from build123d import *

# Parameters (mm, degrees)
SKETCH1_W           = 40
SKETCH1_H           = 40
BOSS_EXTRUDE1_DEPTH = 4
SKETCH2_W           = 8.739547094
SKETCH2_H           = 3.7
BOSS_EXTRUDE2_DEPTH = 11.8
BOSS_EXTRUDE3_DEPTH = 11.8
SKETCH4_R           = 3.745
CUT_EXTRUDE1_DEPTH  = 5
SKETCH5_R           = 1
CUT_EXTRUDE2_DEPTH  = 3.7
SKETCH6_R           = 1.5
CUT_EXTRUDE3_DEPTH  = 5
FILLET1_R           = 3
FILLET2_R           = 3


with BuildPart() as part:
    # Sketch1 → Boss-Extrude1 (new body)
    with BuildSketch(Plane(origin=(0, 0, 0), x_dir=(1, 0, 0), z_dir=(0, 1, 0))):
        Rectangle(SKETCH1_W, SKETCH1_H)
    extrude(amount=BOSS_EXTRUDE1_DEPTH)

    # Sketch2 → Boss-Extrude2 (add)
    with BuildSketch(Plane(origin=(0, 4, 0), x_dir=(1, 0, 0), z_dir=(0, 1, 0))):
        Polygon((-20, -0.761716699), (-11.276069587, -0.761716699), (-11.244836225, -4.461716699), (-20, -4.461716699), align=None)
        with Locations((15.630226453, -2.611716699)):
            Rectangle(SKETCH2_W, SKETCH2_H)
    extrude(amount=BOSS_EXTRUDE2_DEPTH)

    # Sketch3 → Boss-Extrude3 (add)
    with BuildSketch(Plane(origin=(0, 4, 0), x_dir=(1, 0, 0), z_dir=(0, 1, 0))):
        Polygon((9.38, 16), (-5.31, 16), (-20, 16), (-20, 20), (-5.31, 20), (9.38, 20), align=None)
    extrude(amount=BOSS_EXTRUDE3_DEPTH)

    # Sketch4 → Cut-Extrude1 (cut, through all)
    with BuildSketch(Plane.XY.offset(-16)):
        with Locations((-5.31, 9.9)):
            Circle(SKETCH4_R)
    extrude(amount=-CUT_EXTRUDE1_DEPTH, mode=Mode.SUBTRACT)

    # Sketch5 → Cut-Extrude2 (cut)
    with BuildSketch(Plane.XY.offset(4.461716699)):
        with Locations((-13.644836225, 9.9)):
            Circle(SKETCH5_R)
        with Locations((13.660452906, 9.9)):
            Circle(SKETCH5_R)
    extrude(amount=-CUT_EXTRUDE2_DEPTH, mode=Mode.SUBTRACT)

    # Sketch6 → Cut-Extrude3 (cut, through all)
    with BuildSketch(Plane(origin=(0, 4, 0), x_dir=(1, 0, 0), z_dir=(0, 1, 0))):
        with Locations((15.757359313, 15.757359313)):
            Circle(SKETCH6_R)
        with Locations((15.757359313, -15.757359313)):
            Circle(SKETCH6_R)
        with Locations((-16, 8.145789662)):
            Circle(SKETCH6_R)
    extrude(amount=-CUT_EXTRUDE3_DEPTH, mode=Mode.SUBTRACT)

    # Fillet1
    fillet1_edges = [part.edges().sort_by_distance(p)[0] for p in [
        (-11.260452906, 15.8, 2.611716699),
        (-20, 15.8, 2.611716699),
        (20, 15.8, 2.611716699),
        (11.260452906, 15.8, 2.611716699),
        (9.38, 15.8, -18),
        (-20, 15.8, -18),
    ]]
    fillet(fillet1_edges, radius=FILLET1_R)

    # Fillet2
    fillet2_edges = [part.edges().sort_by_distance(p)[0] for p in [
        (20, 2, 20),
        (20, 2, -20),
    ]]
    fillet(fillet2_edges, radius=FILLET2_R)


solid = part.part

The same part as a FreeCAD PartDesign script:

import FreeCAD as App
import Part
import Sketcher
Q = App.Units.Quantity


def edges_at(feature, points):
    """Names of the edges that pass closest to the given points."""
    edges = feature.Shape.Edges
    near = lambda p: min(range(len(edges)), key=lambda i: edges[i].distToShape(Part.Vertex(*p))[0])
    return sorted({f"Edge{near(p) + 1}" for p in points})


def add_polygon(sketch, points):
    """Adds a closed chain of lines whose ends are joined by coincident constraints."""
    first, n = sketch.GeometryCount, len(points)
    for a, b in zip(points, points[1:] + points[:1]):
        sketch.addGeometry(Part.LineSegment(App.Vector(*a, 0), App.Vector(*b, 0)), False)
    for i in range(n):
        sketch.addConstraint(Sketcher.Constraint("Coincident", first + i, 2, first + (i + 1) % n, 1))

doc = App.newDocument("Part")
body = doc.addObject("PartDesign::Body", "Body")

# Sketch on XZ plane
sketch1 = body.newObject("Sketcher::SketchObject", "Sketch")
sketch1.AttachmentSupport = (doc.getObject("XZ_Plane"), [""])
sketch1.MapMode = "FlatFace"
add_polygon(sketch1, [(-20, -20), (-20, 20), (20, 20), (20, -20)])  # lines 0-3
sketch1.addConstraint([
    Sketcher.Constraint("Vertical", 0),
    Sketcher.Constraint("Horizontal", 1),
    Sketcher.Constraint("Vertical", 2),
    Sketcher.Constraint("Horizontal", 3),
    Sketcher.Constraint("Symmetric", 0, 2, 2, 2, -1, 1),
    Sketcher.Constraint("Equal", 3, 0),
    Sketcher.Constraint("DistanceX", 1, 1, 1, 2, Q("40 mm")),
])
pad1 = body.newObject("PartDesign::Pad", "Pad")
pad1.Profile = sketch1
pad1.Length = 4
pad1.Reversed = True

# Sketch on XZ plane
sketch2 = body.newObject("Sketcher::SketchObject", "Sketch001")
sketch2.AttachmentSupport = (doc.getObject("XZ_Plane"), [""])
sketch2.MapMode = "FlatFace"
sketch2.AttachmentOffset = App.Placement(App.Vector(0, 0, -4), App.Rotation())
add_polygon(sketch2, [(-11.27607, 0.761717), (-20, 0.761717), (-20, 4.461717), (-11.244836, 4.461717)])  # lines 0-3
add_polygon(sketch2, [(11.260453, 0.761717), (11.260453, 4.461717), (20, 4.461717), (20, 0.761717)])  # lines 4-7
sketch2.addConstraint([
    Sketcher.Constraint("Horizontal", 0),
    Sketcher.Constraint("Vertical", 1),
    Sketcher.Constraint("Horizontal", 2),
    Sketcher.Constraint("Vertical", 4),
    Sketcher.Constraint("Horizontal", 5),
    Sketcher.Constraint("Vertical", 6),
    Sketcher.Constraint("Horizontal", 7),
    Sketcher.Constraint("Symmetric", 1, 2, 5, 2, -2),
    Sketcher.Constraint("Horizontal", 3, 2, 6, 2),
    Sketcher.Constraint("DistanceY", 1, 1, 1, 2, Q("3.7 mm")),
    Sketcher.Constraint("DistanceX", 0, 2, -1, 1, Q("20 mm")),
    Sketcher.Constraint("DistanceX", 0, 2, 0, 1, Q("8.72393 mm")),
    Sketcher.Constraint("Distance", 3, Q("3.700132 mm")),
    Sketcher.Constraint("DistanceX", 5, 1, 5, 2, Q("8.739547 mm")),
    Sketcher.Constraint("DistanceY", -1, 1, 0, 2, Q("0.761717 mm")),
])
pad2 = body.newObject("PartDesign::Pad", "Pad001")
pad2.Profile = sketch2
pad2.Length = 11.8
pad2.Reversed = True

# Sketch on XZ plane
sketch3 = body.newObject("Sketcher::SketchObject", "Sketch002")
sketch3.AttachmentSupport = (doc.getObject("XZ_Plane"), [""])
sketch3.MapMode = "FlatFace"
sketch3.AttachmentOffset = App.Placement(App.Vector(0, 0, -4), App.Rotation())
add_polygon(sketch3, [(-20, -16), (9.38, -16), (9.38, -20), (-20, -20)])  # lines 0-3
sketch3.addConstraint([
    Sketcher.Constraint("Horizontal", 0),
    Sketcher.Constraint("Vertical", 1),
    Sketcher.Constraint("Horizontal", 2),
    Sketcher.Constraint("Vertical", 3),
    Sketcher.Constraint("DistanceY", 1, 2, 1, 1, Q("4 mm")),
    Sketcher.Constraint("DistanceY", 0, 2, -1, 1, Q("16 mm")),
    Sketcher.Constraint("DistanceX", 2, 2, -1, 1, Q("20 mm")),
    Sketcher.Constraint("DistanceX", 0, 1, 0, 2, Q("29.38 mm")),
])
pad3 = body.newObject("PartDesign::Pad", "Pad002")
pad3.Profile = sketch3
pad3.Length = 11.8
pad3.Reversed = True

# Sketch on XY plane
sketch4 = body.newObject("Sketcher::SketchObject", "Sketch003")
sketch4.AttachmentSupport = (doc.getObject("XY_Plane"), [""])
sketch4.MapMode = "FlatFace"
sketch4.AttachmentOffset = App.Placement(App.Vector(0, 0, -16), App.Rotation())
sketch4.addGeometry(Part.Circle(App.Vector(-5.31, 9.9, 0), App.Vector(0, 0, 1), 3.745), False)
sketch4.addConstraint([
    Sketcher.Constraint("Diameter", 0, Q("7.49 mm")),
    Sketcher.Constraint("DistanceY", -1, 1, 0, 3, Q("9.9 mm")),
    Sketcher.Constraint("DistanceX", 0, 3, -1, 1, Q("5.31 mm")),
])
pocket1 = body.newObject("PartDesign::Pocket", "Pocket")
pocket1.Profile = sketch4
pocket1.Type = "ThroughAll"

# Sketch on XY plane
sketch5 = body.newObject("Sketcher::SketchObject", "Sketch004")
sketch5.AttachmentSupport = (doc.getObject("XY_Plane"), [""])
sketch5.MapMode = "FlatFace"
sketch5.AttachmentOffset = App.Placement(App.Vector(0, 0, 4.461717), App.Rotation())
sketch5.addGeometry([
    Part.Circle(App.Vector(-13.644836, 9.9, 0), App.Vector(0, 0, 1), 1),
    Part.Circle(App.Vector(13.660453, 9.9, 0), App.Vector(0, 0, 1), 1),
], False)
sketch5.addConstraint([
    Sketcher.Constraint("Equal", 0, 1),
    Sketcher.Constraint("Horizontal", 0, 3, 1, 3),
    Sketcher.Constraint("Diameter", 0, Q("2 mm")),
    Sketcher.Constraint("DistanceY", -1, 1, 0, 3, Q("9.9 mm")),
    Sketcher.Constraint("DistanceX", 0, 3, 1, 3, Q("27.305289 mm")),
    Sketcher.Constraint("DistanceX", 0, 3, -1, 1, Q("13.644836 mm")),
])
pocket2 = body.newObject("PartDesign::Pocket", "Pocket001")
pocket2.Profile = sketch5
pocket2.Length = 3.7

# Sketch on XZ plane
sketch6 = body.newObject("Sketcher::SketchObject", "Sketch005")
sketch6.AttachmentSupport = (doc.getObject("XZ_Plane"), [""])
sketch6.MapMode = "FlatFace"
sketch6.AttachmentOffset = App.Placement(App.Vector(0, 0, -4), App.Rotation())
sketch6.addGeometry([
    Part.Circle(App.Vector(15.757359, -15.757359, 0), App.Vector(0, 0, 1), 1.5),
    Part.Circle(App.Vector(15.757359, 15.757359, 0), App.Vector(0, 0, 1), 1.5),
    Part.Circle(App.Vector(-16, -8.14579, 0), App.Vector(0, 0, 1), 1.5),
], False)
sketch6.addConstraint([
    Sketcher.Constraint("Equal", 0, 1),
    Sketcher.Constraint("Equal", 1, 2),
    Sketcher.Constraint("Symmetric", 0, 3, 1, 3, -1),
    Sketcher.Constraint("Diameter", 0, Q("3 mm")),
    Sketcher.Constraint("DistanceX", 2, 3, -1, 1, Q("16 mm")),
    Sketcher.Constraint("DistanceX", -1, 1, 0, 3, Q("15.757359 mm")),
    Sketcher.Constraint("DistanceY", 0, 3, -1, 1, Q("15.757359 mm")),
    Sketcher.Constraint("DistanceY", 2, 3, -1, 1, Q("8.14579 mm")),
])
pocket3 = body.newObject("PartDesign::Pocket", "Pocket002")
pocket3.Profile = sketch6
pocket3.Type = "ThroughAll"
pocket3.Reversed = True
doc.recompute()

fillet = body.newObject("PartDesign::Fillet", "Fillet")
fillet.Base = (pocket3, edges_at(pocket3, [
    (-11.26, 15.8, 2.612),
    (-20, 15.8, 2.612),
    (20, 15.8, 2.612),
    (11.26, 15.8, 2.612),
    (9.38, 15.8, -18),
    (-20, 15.8, -18),
]))
fillet.Radius = 3
doc.recompute()

fillet2 = body.newObject("PartDesign::Fillet", "Fillet001")
fillet2.Base = (fillet, edges_at(fillet, [(20, 2, 20), (20, 2, -20)]))
fillet2.Radius = 3

doc.recompute()
